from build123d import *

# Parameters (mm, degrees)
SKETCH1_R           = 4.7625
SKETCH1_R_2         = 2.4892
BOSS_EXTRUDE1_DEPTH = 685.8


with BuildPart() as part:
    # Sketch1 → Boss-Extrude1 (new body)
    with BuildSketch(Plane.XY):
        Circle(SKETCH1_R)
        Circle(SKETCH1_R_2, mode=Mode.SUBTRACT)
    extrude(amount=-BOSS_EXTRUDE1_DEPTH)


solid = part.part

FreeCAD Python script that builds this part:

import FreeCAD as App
import Part
import Sketcher
from FreeCAD import Vector
Q = App.Units.Quantity

doc = App.newDocument("Part")
params = doc.addObject("Spreadsheet::Sheet", "Params")
for row, (alias, value) in enumerate([
    ("sketch1_diameter", "0.375 in"),
    ("sketch1_diameter2", "0.196 in"),
    ("pad1_length", "27 in"),
], start=1):
    params.set(f"A{row}", alias)
    params.set(f"B{row}", "=" + value)
    params.setAlias(f"B{row}", alias)

body = doc.addObject("PartDesign::Body", "Body")

sketch1 = body.newObject("Sketcher::SketchObject", "Sketch")
sketch1.AttachmentSupport = (doc.getObject("XY_Plane"), [""])
sketch1.MapMode = "FlatFace"
sketch1.addGeometry([
    Part.Circle(Vector(0, 0, 0), Vector(0, 0, 1), 4.7625),
    Part.Circle(Vector(0, 0, 0), Vector(0, 0, 1), 2.4892),
], False)
sketch1.addConstraint([
    Sketcher.Constraint("Coincident", 0, 3, -1, 1),
    Sketcher.Constraint("Coincident", 1, 3, -1, 1),
    Sketcher.Constraint("Diameter", 0, Q("0.375 in")),
    Sketcher.Constraint("Diameter", 1, Q("0.196 in")),
])
sketch1.setExpression("Constraints[2]", "Params.sketch1_diameter")
sketch1.setExpression("Constraints[3]", "Params.sketch1_diameter2")
pad1 = body.newObject("PartDesign::Pad", "Pad")
pad1.Profile = sketch1
pad1.setExpression("Length", "Params.pad1_length")
pad1.Reversed = True

doc.recompute()
